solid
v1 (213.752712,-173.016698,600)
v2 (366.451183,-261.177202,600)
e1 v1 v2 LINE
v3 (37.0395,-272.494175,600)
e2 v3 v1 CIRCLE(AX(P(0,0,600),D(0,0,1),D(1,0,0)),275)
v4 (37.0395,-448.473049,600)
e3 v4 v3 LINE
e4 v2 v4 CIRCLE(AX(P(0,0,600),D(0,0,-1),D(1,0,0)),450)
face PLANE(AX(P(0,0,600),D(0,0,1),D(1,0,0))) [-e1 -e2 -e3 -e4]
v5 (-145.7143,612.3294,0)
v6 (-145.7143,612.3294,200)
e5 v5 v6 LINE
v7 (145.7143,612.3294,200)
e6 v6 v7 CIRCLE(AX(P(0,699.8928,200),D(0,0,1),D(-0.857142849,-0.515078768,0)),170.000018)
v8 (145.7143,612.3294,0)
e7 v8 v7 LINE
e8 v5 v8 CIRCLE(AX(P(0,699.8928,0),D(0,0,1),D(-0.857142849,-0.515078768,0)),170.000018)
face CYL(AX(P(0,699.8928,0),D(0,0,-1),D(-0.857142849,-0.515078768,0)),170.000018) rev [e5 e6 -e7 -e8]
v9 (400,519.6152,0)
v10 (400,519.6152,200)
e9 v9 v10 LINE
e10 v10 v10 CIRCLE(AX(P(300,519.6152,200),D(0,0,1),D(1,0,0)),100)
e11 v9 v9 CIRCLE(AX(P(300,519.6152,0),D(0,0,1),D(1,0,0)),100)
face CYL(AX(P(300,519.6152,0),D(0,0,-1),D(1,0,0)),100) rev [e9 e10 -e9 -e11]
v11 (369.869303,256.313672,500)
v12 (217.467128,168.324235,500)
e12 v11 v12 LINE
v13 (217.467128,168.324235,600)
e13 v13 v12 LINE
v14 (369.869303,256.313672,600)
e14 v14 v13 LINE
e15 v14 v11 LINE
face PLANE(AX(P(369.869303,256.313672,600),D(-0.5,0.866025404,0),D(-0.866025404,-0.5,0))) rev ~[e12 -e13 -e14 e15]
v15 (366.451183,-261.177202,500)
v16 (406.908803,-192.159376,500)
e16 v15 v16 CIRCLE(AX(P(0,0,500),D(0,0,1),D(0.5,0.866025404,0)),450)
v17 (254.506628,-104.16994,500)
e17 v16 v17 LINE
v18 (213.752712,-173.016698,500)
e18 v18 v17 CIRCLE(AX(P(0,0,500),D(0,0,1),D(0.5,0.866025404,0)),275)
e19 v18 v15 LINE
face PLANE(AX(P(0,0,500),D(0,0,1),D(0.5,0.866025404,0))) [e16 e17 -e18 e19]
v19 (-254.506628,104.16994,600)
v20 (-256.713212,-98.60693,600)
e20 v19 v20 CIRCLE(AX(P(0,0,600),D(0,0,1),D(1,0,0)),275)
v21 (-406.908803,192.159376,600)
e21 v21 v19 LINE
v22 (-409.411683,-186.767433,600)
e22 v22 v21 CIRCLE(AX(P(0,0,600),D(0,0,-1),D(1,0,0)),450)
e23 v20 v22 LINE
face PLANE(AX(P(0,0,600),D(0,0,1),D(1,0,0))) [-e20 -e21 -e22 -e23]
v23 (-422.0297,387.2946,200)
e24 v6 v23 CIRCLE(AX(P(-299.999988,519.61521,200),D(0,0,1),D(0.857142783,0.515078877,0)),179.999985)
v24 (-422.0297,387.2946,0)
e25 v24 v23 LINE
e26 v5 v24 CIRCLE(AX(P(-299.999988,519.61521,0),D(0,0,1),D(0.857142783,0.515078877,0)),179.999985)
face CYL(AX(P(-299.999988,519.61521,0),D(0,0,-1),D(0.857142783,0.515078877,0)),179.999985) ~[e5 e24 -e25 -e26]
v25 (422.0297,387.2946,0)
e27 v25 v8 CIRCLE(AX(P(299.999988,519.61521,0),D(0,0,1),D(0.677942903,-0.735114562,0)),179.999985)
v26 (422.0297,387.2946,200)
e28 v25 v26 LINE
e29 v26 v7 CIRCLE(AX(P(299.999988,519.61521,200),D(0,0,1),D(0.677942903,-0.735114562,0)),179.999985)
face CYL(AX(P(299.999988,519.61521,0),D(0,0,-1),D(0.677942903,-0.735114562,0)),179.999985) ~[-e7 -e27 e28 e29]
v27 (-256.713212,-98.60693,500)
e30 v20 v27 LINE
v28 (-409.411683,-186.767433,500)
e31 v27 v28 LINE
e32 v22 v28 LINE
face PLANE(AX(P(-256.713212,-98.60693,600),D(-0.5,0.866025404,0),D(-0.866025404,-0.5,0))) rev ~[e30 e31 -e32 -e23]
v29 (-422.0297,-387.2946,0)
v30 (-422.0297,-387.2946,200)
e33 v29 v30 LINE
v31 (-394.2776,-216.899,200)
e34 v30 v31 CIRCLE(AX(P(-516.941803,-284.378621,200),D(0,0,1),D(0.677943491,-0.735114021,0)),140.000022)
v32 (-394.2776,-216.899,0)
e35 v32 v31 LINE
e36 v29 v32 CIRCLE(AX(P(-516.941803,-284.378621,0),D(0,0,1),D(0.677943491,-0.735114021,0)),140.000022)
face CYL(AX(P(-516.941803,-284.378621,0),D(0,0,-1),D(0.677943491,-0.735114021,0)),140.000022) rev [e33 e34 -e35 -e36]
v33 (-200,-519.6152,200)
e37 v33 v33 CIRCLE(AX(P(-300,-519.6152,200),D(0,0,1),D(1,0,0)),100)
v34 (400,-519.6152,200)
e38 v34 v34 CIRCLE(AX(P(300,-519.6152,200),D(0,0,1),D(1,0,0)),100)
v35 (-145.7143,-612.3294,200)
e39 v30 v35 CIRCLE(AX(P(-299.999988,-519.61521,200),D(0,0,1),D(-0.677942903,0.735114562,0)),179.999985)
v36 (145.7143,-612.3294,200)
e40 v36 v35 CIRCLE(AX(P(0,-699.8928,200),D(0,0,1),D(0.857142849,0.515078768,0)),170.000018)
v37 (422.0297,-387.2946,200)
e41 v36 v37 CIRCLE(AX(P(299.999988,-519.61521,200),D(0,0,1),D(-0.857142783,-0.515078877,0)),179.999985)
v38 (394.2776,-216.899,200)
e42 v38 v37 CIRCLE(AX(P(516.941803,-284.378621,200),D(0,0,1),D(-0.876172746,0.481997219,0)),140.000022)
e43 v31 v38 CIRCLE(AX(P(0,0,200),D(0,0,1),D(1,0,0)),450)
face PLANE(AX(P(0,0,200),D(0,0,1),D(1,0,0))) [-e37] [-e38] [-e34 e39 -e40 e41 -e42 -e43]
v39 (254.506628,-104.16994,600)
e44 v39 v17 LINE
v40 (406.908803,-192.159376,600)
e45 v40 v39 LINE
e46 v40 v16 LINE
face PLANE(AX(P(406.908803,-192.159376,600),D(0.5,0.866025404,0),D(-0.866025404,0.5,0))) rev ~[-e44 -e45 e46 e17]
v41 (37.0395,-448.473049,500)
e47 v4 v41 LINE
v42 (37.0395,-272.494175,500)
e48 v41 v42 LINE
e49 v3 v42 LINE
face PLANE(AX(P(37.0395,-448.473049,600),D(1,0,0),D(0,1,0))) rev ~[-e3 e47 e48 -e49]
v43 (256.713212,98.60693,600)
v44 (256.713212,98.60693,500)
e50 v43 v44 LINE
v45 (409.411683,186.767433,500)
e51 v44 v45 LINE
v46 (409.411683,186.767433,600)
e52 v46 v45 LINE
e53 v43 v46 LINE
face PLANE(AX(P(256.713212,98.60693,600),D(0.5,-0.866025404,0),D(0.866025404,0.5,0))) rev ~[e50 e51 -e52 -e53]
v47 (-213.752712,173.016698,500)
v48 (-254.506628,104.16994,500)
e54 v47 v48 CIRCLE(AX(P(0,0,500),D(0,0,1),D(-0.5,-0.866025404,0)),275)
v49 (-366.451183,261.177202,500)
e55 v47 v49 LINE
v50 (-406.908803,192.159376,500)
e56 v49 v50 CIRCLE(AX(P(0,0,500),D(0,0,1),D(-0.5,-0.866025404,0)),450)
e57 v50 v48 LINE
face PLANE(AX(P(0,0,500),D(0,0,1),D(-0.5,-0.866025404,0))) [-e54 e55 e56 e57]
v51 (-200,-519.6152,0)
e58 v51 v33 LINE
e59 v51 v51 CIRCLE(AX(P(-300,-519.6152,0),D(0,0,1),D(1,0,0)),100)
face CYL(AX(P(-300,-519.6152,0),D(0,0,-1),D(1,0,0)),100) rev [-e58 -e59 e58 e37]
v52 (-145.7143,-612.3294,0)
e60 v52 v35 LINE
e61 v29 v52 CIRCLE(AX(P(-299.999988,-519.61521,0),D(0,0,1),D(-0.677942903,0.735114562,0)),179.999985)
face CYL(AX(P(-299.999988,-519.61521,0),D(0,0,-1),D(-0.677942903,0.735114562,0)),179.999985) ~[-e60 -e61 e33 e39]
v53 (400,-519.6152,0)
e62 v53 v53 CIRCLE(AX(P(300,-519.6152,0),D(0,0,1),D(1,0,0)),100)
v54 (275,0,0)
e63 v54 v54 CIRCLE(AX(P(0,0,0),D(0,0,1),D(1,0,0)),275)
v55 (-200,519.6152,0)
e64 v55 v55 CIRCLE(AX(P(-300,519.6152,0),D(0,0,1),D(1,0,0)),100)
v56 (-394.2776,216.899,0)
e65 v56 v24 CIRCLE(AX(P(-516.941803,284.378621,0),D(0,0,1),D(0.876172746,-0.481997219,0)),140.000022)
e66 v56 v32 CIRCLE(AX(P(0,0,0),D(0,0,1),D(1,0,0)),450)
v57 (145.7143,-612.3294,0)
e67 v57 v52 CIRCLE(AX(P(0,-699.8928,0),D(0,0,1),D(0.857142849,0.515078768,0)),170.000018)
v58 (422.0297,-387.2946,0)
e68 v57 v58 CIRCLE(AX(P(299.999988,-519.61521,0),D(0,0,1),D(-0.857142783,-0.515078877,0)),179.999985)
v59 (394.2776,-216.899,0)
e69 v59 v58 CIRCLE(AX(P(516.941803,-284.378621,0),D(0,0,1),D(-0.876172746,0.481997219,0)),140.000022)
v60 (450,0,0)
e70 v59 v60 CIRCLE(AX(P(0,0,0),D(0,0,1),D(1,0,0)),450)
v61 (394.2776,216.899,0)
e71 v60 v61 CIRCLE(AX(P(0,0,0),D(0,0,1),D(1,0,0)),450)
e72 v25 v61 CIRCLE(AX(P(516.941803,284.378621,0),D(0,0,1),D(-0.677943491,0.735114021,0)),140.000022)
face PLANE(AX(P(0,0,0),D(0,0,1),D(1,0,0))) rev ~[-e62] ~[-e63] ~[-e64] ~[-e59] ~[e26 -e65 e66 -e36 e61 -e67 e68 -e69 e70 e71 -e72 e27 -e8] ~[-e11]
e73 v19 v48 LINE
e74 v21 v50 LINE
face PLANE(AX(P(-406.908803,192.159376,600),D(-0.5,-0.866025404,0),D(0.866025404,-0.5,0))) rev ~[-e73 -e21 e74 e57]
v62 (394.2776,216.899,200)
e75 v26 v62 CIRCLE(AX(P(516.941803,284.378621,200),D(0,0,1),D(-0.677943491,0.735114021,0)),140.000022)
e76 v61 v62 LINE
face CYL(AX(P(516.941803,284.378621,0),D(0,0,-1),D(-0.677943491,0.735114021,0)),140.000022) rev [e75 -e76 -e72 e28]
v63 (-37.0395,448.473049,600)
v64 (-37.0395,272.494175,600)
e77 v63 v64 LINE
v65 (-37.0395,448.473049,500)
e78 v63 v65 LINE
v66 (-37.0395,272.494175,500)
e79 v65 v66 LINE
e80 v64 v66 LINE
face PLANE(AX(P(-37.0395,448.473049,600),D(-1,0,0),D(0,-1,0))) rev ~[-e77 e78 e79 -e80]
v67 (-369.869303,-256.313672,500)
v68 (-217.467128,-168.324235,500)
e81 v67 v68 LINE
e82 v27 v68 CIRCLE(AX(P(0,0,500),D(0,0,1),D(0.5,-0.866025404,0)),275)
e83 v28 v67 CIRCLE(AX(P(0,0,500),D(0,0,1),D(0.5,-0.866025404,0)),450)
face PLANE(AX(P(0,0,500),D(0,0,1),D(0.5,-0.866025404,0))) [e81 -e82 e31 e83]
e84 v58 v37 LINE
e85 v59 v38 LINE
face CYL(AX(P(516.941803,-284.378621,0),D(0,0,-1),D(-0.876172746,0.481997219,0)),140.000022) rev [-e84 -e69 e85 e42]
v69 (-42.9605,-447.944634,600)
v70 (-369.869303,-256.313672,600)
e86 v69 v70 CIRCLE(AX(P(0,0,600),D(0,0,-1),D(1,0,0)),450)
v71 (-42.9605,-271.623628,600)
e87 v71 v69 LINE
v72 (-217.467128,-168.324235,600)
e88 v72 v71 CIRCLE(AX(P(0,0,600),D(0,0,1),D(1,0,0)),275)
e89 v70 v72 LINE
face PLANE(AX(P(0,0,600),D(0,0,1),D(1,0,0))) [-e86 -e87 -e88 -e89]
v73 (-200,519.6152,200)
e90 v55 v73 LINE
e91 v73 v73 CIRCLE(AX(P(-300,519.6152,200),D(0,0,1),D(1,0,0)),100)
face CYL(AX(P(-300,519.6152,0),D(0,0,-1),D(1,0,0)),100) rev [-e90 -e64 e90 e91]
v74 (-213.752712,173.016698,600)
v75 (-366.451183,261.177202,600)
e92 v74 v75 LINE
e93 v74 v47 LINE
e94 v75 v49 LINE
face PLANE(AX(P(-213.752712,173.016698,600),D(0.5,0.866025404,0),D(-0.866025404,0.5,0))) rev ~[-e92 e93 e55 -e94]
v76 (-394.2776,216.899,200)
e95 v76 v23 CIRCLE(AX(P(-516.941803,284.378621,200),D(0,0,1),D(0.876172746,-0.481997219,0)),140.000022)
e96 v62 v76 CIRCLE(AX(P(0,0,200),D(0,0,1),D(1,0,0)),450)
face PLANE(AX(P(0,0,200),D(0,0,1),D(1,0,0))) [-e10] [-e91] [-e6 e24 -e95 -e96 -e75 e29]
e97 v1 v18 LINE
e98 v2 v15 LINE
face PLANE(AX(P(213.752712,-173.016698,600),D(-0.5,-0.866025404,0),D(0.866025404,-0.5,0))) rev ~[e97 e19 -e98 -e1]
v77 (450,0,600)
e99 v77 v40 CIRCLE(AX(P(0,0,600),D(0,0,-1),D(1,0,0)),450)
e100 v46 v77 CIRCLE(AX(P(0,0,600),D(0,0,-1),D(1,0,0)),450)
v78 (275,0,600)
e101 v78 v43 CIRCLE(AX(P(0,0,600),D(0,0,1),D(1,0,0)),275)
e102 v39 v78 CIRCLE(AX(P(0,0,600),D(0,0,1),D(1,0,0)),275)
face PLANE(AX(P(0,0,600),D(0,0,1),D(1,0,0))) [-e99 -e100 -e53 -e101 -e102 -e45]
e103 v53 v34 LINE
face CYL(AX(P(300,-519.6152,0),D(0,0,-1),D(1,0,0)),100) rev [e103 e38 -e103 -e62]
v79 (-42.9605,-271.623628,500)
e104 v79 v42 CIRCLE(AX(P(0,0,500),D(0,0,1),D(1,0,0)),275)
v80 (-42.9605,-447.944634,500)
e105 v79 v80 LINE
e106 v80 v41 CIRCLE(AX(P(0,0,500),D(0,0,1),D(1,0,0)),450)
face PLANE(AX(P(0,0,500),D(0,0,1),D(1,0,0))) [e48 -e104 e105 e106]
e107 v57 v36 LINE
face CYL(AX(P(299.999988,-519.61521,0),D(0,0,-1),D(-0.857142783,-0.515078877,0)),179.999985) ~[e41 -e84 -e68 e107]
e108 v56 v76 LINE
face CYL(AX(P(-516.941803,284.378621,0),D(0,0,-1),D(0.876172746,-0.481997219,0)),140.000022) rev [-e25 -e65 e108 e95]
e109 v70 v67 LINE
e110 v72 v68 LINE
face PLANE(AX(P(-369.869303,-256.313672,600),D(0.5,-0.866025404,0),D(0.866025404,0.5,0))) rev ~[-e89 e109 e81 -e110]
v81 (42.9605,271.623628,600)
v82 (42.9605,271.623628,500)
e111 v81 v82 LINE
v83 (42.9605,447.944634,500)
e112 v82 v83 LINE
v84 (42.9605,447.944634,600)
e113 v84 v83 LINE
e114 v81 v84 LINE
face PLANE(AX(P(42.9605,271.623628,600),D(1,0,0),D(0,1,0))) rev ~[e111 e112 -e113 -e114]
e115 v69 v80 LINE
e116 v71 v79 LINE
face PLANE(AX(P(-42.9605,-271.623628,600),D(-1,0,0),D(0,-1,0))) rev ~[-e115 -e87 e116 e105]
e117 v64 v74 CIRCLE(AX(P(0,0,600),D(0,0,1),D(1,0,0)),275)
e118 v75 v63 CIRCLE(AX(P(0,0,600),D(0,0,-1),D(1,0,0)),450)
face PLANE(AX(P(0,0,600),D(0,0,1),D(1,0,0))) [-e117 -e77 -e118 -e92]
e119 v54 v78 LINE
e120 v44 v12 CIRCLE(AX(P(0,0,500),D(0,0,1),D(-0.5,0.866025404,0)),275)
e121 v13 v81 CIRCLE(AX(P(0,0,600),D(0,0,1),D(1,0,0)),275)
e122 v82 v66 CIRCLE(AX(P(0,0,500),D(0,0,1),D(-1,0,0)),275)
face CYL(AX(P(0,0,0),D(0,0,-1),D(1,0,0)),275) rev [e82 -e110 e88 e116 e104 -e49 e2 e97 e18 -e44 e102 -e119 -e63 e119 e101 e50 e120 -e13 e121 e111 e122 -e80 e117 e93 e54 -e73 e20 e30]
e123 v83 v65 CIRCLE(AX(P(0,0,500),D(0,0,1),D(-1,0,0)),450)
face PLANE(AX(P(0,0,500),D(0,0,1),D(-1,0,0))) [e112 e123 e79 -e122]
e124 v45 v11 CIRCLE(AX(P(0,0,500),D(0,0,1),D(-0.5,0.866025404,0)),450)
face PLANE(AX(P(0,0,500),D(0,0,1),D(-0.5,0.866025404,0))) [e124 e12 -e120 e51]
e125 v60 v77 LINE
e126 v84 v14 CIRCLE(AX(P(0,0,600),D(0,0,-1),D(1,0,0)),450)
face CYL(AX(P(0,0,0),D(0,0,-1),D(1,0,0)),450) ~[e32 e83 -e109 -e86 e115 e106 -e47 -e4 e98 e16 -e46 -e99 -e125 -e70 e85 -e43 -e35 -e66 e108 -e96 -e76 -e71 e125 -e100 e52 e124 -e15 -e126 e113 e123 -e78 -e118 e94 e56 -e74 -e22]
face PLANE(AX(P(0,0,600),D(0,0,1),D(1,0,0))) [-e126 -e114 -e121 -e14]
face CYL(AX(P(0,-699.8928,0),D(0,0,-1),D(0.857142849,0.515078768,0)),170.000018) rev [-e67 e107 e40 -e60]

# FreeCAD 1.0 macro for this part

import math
import FreeCAD as App
import Part
import Sketcher
from FreeCAD import Vector
Q = App.Units.Quantity

doc = App.newDocument("Part")
body = doc.addObject("PartDesign::Body", "Body")
body.AllowCompound = True

# Sketch on XY plane
sketch1 = body.newObject("Sketcher::SketchObject", "Sketch")
sketch1.AttachmentSupport = (doc.getObject("XY_Plane"), [""])
sketch1.MapMode = "FlatFace"
sketch1.addGeometry([
    Part.ArcOfCircle(Part.Circle(Vector(0, 0, 0), Vector(0, 0, 1), 450), math.radians(28.815961), math.radians(151.184039)),  # 0
    Part.ArcOfCircle(Part.Circle(Vector(516.9418, 284.3786, 0), Vector(0, 0, 1), 140.000035), math.radians(132.683142), math.radians(208.815918)),  # 1
    Part.ArcOfCircle(Part.Circle(Vector(300, 519.6152, 0), Vector(0, 0, 1), 179.999969), math.radians(-47.316898), math.radians(148.997272)),  # 2
    Part.ArcOfCircle(Part.Circle(Vector(0, 699.8928, 0), Vector(0, 0, 1), 170.000018), math.radians(-148.99728), math.radians(-31.00272)),  # 3
    Part.ArcOfCircle(Part.Circle(Vector(-300, 519.6152, 0), Vector(0, 0, 1), 180), math.radians(31.002728), math.radians(227.316898)),  # 4
    Part.ArcOfCircle(Part.Circle(Vector(-516.9418, 284.3786, 0), Vector(0, 0, 1), 140.000008), math.radians(-28.815918), math.radians(47.316858)),  # 5
    Part.Circle(Vector(-300, 519.6152, 0), Vector(0, 0, 1), 100),  # 6
    Part.Circle(Vector(300, 519.6152, 0), Vector(0, 0, 1), 100),  # 7
    Part.ArcOfCircle(Part.Circle(Vector(516.9418, -284.3786, 0), Vector(0, 0, 1), 140.000008), math.radians(151.184082), math.radians(227.316858)),  # 8
    Part.ArcOfCircle(Part.Circle(Vector(0, 0, 0), Vector(0, 0, 1), 450), math.radians(-151.184039), math.radians(-28.815961)),  # 9
    Part.ArcOfCircle(Part.Circle(Vector(-516.9418, -284.3786, 0), Vector(0, 0, 1), 140.000035), math.radians(-47.316858), math.radians(28.815918)),  # 10
    Part.ArcOfCircle(Part.Circle(Vector(-300, -519.6152, 0), Vector(0, 0, 1), 179.999969), math.radians(132.683102), math.radians(328.997272)),  # 11
    Part.ArcOfCircle(Part.Circle(Vector(0, -699.8928, 0), Vector(0, 0, 1), 170.000018), math.radians(31.00272), math.radians(148.99728)),  # 12
    Part.ArcOfCircle(Part.Circle(Vector(300, -519.6152, 0), Vector(0, 0, 1), 180), math.radians(-148.997272), math.radians(47.316898)),  # 13
    Part.Circle(Vector(-300, -519.6152, 0), Vector(0, 0, 1), 100),  # 14
    Part.Circle(Vector(300, -519.6152, 0), Vector(0, 0, 1), 100),  # 15
], False)
sketch1.addConstraint([
    Sketcher.Constraint("Tangent", 0, 1, 1, 2),
    Sketcher.Constraint("Tangent", 1, 1, 2, 1),
    Sketcher.Constraint("Tangent", 2, 2, 3, 2),
    Sketcher.Constraint("Tangent", 3, 1, 4, 1),
    Sketcher.Constraint("Tangent", 4, 2, 5, 2),
    Sketcher.Constraint("Tangent", 5, 1, 0, 2),
    Sketcher.Constraint("Tangent", 8, 1, 9, 2),
    Sketcher.Constraint("Tangent", 9, 1, 10, 2),
    Sketcher.Constraint("Tangent", 10, 1, 11, 1),
    Sketcher.Constraint("Tangent", 11, 2, 12, 2),
    Sketcher.Constraint("Tangent", 12, 1, 13, 1),
    Sketcher.Constraint("Tangent", 13, 2, 8, 2),
    Sketcher.Constraint("Coincident", 0, 3, -1, 1),
    Sketcher.Constraint("Coincident", 9, 3, -1, 1),
    Sketcher.Constraint("Coincident", 6, 3, 4, 3),
    Sketcher.Constraint("Coincident", 7, 3, 2, 3),
    Sketcher.Constraint("Coincident", 14, 3, 11, 3),
    Sketcher.Constraint("Coincident", 15, 3, 13, 3),
    Sketcher.Constraint("Equal", 2, 4),
    Sketcher.Constraint("Equal", 1, 5),
    Sketcher.Constraint("Equal", 6, 7),
    Sketcher.Constraint("Equal", 5, 8),
    Sketcher.Constraint("Equal", 0, 9),
    Sketcher.Constraint("Equal", 8, 10),
    Sketcher.Constraint("Equal", 4, 11),
    Sketcher.Constraint("Equal", 3, 12),
    Sketcher.Constraint("Equal", 11, 13),
    Sketcher.Constraint("Equal", 7, 14),
    Sketcher.Constraint("Equal", 14, 15),
    Sketcher.Constraint("Symmetric", 2, 3, 11, 3, -1, 1),
    Sketcher.Constraint("Symmetric", 4, 3, 13, 3, -1, 1),
    Sketcher.Constraint("Symmetric", 2, 3, 4, 3, -2),
    Sketcher.Constraint("Diameter", 6, Q("200 mm")),
    Sketcher.Constraint("Radius", 0, Q("450 mm")),
    Sketcher.Constraint("Radius", 1, Q("140 mm")),
    Sketcher.Constraint("Radius", 2, Q("180 mm")),
    Sketcher.Constraint("Radius", 3, Q("170 mm")),
    Sketcher.Constraint("DistanceX", 4, 3, 2, 3, Q("600 mm")),
    Sketcher.Constraint("DistanceX", -1, 1, 1, 3, Q("516.9418 mm")),
])
pad1 = body.newObject("PartDesign::Pad", "Pad")
pad1.Profile = sketch1
pad1.Length = 200

# Sketch on XY plane
sketch2 = body.newObject("Sketcher::SketchObject", "Sketch001")
sketch2.AttachmentSupport = (doc.getObject("XY_Plane"), [""])
sketch2.MapMode = "FlatFace"
sketch2.addGeometry([
    Part.Circle(Vector(0, 0, 0), Vector(0, 0, 1), 450),
    Part.Circle(Vector(0, 0, 0), Vector(0, 0, 1), 275),
], False)
sketch2.addConstraint([
    Sketcher.Constraint("Coincident", 0, 3, -1, 1),
    Sketcher.Constraint("Coincident", 1, 3, -1, 1),
    Sketcher.Constraint("Diameter", 0, Q("900 mm")),
    Sketcher.Constraint("Diameter", 1, Q("550 mm")),
])
pad2 = body.newObject("PartDesign::Pad", "Pad001")
pad2.Profile = sketch2
pad2.Length = 600

# Sketch on XY plane
sketch3 = body.newObject("Sketcher::SketchObject", "Sketch002")
sketch3.AttachmentSupport = (doc.getObject("XY_Plane"), [""])
sketch3.MapMode = "FlatFace"
sketch3.AttachmentOffset = App.Placement(Vector(0, 0, 600), App.Rotation())
sketch3.addGeometry([
    Part.ArcOfCircle(Part.Circle(Vector(0, 0, 0), Vector(0, 0, 1), 275), math.radians(81.012441), math.radians(97.740642)),
    Part.LineSegment(Vector(42.9605, 271.623628, 0), Vector(42.9605, 447.944634, 0)),
    Part.ArcOfCircle(Part.Circle(Vector(0, 0, 0), Vector(0, 0, 1), 450), math.radians(84.521756), math.radians(94.721357)),
    Part.LineSegment(Vector(-37.0395, 448.473049, 0), Vector(-37.0395, 272.494175, 0)),
], False)
sketch3.addConstraint([
    Sketcher.Constraint("Coincident", 0, 1, 1, 1),
    Sketcher.Constraint("Coincident", 1, 2, 2, 1),
    Sketcher.Constraint("Coincident", 2, 2, 3, 1),
    Sketcher.Constraint("Coincident", 3, 2, 0, 2),
    Sketcher.Constraint("Vertical", 1),
    Sketcher.Constraint("Vertical", 3),
    Sketcher.Constraint("Coincident", 0, 3, -1, 1),
    Sketcher.Constraint("Coincident", 2, 3, -1, 1),
    Sketcher.Constraint("Radius", 0, Q("275 mm")),
    Sketcher.Constraint("Radius", 2, Q("450 mm")),
    Sketcher.Constraint("DistanceX", 2, 2, 1, 2, Q("80 mm")),
    Sketcher.Constraint("DistanceY", 1, 1, 1, 2, Q("176.321 mm")),
])
pocket1 = body.newObject("PartDesign::Pocket", "Pocket")
pocket1.Profile = sketch3
pocket1.Length = 100
doc.recompute()

polarpattern = body.newObject("PartDesign::PolarPattern", "PolarPattern")
polarpattern.Originals = [pocket1]
polarpattern.Axis = (doc.getObject("Z_Axis"), [""])
polarpattern.Angle = 360
polarpattern.Occurrences = 6
body.Tip = polarpattern

doc.recompute()
